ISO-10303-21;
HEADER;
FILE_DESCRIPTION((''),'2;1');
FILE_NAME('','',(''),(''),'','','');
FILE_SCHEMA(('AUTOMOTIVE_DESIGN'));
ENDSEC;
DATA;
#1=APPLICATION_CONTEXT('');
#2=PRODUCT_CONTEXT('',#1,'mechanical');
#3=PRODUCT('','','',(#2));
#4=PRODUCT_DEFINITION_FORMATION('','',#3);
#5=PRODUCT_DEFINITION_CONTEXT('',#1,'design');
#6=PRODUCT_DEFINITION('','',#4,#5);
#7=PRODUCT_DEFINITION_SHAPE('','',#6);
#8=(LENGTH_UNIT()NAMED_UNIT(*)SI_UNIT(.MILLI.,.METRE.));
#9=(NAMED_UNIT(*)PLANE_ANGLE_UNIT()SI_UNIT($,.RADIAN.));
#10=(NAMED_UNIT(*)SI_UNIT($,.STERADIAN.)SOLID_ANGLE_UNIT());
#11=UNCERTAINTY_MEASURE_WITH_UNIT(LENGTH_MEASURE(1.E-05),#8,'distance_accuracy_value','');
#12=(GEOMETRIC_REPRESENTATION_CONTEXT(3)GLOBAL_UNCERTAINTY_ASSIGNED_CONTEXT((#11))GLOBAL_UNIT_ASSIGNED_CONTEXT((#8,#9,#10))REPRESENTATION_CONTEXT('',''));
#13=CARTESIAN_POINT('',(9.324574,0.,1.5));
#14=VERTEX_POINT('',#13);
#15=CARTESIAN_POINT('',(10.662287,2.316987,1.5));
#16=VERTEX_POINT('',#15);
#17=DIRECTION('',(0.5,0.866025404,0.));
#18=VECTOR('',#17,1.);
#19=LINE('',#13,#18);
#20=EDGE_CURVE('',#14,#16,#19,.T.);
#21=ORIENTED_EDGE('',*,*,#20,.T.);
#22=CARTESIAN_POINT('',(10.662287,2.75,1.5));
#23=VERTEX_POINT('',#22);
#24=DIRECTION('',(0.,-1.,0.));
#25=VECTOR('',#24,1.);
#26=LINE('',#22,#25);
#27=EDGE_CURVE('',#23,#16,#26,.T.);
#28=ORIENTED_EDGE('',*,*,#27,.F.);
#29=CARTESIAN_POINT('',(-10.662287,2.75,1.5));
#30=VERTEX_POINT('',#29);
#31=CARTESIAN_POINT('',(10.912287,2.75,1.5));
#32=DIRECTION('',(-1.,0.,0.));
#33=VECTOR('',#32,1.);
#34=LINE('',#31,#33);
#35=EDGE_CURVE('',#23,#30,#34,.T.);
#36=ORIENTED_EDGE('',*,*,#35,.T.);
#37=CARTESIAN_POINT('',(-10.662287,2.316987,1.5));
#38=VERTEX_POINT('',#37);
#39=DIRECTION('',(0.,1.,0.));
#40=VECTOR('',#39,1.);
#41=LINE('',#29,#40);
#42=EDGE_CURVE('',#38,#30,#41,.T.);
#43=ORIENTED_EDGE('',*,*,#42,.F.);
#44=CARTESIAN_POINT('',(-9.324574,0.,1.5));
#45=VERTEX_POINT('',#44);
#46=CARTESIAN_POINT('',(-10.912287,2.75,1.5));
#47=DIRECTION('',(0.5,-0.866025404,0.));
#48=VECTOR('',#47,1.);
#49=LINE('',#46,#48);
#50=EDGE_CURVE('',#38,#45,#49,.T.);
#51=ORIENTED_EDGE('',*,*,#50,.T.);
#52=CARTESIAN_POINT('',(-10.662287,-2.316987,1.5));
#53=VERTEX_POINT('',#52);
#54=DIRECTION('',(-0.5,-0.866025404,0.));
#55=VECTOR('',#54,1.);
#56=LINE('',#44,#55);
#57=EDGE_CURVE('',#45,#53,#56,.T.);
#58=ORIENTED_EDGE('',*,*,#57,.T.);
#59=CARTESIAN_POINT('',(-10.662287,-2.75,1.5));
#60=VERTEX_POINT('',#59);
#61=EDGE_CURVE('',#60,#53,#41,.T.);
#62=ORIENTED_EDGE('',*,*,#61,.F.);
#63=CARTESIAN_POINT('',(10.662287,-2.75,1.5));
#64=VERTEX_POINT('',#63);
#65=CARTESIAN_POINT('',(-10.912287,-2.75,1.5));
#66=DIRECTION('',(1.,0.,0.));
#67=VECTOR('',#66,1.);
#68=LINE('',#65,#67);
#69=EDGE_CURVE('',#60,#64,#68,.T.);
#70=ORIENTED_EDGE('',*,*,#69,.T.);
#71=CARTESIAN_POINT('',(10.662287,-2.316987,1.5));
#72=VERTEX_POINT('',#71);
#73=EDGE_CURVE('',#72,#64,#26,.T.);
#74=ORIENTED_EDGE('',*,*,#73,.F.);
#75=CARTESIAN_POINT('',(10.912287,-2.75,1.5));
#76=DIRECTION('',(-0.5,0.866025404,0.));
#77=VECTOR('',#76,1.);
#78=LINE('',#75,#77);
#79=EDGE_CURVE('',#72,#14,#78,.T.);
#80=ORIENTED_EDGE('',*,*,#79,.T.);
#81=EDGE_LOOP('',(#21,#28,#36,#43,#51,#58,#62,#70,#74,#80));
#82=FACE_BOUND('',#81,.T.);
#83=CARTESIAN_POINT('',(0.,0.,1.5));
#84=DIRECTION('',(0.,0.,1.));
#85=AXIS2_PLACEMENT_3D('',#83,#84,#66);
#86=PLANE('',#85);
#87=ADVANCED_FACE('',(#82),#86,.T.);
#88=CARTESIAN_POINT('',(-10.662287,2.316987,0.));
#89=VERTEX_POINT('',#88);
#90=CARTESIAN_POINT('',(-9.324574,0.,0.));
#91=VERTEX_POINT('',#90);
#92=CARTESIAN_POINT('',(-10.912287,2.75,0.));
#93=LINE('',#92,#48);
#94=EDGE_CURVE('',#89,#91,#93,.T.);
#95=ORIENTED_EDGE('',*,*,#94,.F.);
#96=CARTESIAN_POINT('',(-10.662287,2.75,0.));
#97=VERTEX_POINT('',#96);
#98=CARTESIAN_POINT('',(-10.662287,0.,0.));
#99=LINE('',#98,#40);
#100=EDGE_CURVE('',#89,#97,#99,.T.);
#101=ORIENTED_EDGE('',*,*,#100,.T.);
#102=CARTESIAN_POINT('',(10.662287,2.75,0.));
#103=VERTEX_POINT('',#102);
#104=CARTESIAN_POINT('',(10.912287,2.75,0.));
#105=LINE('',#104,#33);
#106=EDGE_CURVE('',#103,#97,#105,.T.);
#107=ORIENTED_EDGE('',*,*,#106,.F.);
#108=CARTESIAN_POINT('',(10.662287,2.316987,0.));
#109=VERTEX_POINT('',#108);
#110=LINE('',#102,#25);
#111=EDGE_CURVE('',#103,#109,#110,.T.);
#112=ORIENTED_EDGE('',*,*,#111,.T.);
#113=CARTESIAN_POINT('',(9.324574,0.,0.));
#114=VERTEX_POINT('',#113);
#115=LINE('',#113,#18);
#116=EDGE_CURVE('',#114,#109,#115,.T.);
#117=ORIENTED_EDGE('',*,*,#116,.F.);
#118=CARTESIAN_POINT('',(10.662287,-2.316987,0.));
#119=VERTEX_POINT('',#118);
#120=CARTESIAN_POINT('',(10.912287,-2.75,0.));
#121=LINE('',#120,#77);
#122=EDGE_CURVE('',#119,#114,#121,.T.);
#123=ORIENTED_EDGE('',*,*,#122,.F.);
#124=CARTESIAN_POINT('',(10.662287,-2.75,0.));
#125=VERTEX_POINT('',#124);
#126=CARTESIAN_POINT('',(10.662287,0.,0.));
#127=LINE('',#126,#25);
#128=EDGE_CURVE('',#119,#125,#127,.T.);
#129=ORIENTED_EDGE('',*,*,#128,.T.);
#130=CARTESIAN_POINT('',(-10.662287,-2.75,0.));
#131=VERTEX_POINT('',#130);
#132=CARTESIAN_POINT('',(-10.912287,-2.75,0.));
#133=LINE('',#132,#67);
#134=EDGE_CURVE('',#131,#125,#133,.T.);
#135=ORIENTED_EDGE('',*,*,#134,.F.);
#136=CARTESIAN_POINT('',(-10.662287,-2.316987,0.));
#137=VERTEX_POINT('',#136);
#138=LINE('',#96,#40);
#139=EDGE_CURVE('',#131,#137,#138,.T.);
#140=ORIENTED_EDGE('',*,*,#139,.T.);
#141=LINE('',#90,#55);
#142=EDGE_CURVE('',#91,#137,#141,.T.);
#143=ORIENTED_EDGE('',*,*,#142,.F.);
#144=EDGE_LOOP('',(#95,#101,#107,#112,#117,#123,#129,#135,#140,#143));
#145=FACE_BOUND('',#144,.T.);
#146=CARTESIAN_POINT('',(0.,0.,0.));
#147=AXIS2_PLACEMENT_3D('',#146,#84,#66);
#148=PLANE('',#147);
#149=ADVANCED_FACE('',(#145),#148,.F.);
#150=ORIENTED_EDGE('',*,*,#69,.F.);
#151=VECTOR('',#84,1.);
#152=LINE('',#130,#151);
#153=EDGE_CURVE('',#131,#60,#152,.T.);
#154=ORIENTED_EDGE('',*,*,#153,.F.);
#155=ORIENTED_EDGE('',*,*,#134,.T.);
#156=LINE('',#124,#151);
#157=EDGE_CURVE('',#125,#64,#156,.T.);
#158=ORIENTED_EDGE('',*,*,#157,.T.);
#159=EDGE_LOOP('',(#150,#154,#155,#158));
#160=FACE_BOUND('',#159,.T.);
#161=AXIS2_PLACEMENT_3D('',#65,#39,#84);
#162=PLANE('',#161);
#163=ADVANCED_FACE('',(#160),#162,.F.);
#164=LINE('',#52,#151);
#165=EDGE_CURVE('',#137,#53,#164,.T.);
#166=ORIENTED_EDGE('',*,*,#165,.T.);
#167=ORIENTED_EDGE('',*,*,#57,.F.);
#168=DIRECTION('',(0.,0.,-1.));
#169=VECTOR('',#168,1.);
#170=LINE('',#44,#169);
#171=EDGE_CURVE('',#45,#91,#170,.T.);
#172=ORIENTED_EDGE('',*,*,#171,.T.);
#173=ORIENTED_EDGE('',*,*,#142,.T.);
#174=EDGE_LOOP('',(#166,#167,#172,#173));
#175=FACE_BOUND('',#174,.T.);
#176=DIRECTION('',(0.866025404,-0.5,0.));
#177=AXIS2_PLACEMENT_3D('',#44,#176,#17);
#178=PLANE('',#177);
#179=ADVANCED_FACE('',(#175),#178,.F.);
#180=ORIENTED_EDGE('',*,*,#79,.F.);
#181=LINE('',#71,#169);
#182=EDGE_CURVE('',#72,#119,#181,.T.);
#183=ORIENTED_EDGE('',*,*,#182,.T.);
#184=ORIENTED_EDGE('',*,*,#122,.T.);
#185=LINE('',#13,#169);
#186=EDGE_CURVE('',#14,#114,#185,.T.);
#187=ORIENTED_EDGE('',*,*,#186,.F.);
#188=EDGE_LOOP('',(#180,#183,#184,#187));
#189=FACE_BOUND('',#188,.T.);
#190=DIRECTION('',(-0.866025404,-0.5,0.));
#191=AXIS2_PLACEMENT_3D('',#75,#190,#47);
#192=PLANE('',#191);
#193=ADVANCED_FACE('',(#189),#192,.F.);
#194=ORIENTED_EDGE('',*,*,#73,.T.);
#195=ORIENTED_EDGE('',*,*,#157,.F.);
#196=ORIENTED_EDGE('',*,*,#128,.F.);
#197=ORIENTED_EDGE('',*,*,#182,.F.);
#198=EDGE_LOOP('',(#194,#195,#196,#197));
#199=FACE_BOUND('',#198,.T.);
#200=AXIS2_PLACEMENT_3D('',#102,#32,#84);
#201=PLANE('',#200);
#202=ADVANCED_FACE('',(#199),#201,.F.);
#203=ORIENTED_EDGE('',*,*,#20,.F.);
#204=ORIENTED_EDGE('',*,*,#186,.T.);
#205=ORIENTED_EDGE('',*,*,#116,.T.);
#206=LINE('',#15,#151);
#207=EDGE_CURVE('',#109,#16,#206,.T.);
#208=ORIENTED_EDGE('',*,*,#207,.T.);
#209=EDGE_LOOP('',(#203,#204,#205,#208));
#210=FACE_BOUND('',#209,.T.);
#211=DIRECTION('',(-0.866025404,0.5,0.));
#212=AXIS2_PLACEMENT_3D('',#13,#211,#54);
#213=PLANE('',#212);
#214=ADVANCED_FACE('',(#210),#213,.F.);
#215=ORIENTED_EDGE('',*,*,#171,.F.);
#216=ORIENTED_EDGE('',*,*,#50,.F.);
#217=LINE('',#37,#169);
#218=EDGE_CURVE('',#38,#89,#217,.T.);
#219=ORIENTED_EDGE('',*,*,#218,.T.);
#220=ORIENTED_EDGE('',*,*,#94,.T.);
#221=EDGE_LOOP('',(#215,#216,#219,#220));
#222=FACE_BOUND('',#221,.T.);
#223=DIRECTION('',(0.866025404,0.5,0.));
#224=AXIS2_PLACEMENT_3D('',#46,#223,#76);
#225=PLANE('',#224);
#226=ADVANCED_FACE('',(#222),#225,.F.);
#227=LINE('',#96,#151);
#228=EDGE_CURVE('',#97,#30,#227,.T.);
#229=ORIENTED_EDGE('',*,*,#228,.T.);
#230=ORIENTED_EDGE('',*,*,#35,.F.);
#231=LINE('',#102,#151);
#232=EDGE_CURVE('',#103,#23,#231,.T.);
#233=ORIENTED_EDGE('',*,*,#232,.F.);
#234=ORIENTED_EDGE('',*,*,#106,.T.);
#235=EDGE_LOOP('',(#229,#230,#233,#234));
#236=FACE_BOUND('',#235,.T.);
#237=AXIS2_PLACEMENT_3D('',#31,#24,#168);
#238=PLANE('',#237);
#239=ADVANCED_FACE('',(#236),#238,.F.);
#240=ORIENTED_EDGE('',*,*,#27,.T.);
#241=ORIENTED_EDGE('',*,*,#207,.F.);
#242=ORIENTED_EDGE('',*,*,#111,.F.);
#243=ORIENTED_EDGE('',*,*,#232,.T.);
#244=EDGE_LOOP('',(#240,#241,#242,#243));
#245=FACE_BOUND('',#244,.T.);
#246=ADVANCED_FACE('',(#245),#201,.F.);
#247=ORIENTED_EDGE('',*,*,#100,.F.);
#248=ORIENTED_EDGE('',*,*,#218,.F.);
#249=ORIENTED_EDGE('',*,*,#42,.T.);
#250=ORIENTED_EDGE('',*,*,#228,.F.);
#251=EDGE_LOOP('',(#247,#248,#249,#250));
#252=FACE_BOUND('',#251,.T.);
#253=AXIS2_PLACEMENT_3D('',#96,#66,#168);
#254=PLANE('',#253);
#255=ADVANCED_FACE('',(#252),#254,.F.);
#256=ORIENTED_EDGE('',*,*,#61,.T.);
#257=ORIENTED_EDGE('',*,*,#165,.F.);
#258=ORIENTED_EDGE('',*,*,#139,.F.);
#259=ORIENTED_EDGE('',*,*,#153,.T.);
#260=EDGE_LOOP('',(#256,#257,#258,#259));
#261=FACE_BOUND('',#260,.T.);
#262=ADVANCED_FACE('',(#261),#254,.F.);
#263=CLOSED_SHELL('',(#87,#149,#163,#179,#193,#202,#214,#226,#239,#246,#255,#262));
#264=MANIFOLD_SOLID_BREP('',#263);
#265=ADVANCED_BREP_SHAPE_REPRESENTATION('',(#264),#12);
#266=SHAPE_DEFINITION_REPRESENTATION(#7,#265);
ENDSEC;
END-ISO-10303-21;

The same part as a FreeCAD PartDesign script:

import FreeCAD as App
import Part
import Sketcher
Q = App.Units.Quantity


def add_polygon(sketch, points):
    """Adds a closed chain of lines whose ends are joined by coincident constraints."""
    first, n = sketch.GeometryCount, len(points)
    for a, b in zip(points, points[1:] + points[:1]):
        sketch.addGeometry(Part.LineSegment(App.Vector(*a, 0), App.Vector(*b, 0)), False)
    for i in range(n):
        sketch.addConstraint(Sketcher.Constraint("Coincident", first + i, 2, first + (i + 1) % n, 1))

doc = App.newDocument("Part")
params = doc.addObject("Spreadsheet::Sheet", "Params")
for row, (alias, value) in enumerate([
    ("pad1_length", "1.5 mm"),
    ("sketch2_height", "5.5 mm"),
    ("sketch2_width", "0.25 mm"),
], start=1):
    params.set(f"A{row}", alias)
    params.set(f"B{row}", "=" + value)
    params.setAlias(f"B{row}", alias)

body = doc.addObject("PartDesign::Body", "Body")

# Sketch on XY plane
sketch1 = body.newObject("Sketcher::SketchObject", "Sketch")
sketch1.AttachmentSupport = (doc.getObject("XY_Plane"), [""])
sketch1.MapMode = "FlatFace"
add_polygon(sketch1, [(-10.9, 2.8), (-9.3, 0), (-10.9, -2.8), (10.9, -2.8), (9.3, 0), (10.9, 2.8)])  # lines 0-5
sketch1.addConstraint(Sketcher.Constraint("Horizontal", 2))
sketch1.addConstraint(Sketcher.Constraint("Horizontal", 5))
sketch1.addConstraint(Sketcher.Constraint("Symmetric", 0, 2, 3, 2, -1, 1))
sketch1.addConstraint(Sketcher.Constraint("Symmetric", 1, 2, 4, 2, -1, 1))
sketch1.addConstraint(Sketcher.Constraint("PointOnObject", 0, 2, -1))
sketch1.addConstraint(Sketcher.Constraint("Parallel", 0, 3))
sketch1.addConstraint(Sketcher.Constraint("Vertical", 2, 2, 4, 2))
sketch1.addConstraint(Sketcher.Constraint("Angle", 0, Q("-60 deg")))
sketch1.addConstraint(Sketcher.Constraint("DistanceY", 2, 2, 4, 2, Q("5.5 mm")))
sketch1.addConstraint(Sketcher.Constraint("DistanceX", 2, 1, 2, 2, Q("21.824574 mm")))
pad1 = body.newObject("PartDesign::Pad", "Pad")
pad1.Profile = sketch1
pad1.setExpression("Length", "Params.pad1_length")

# Sketch on XY plane
sketch2 = body.newObject("Sketcher::SketchObject", "Sketch001")
sketch2.AttachmentSupport = (doc.getObject("XY_Plane"), [""])
sketch2.MapMode = "FlatFace"
sketch2.AttachmentOffset = App.Placement(App.Vector(0, 0, 1.5), App.Rotation())
add_polygon(sketch2, [(10.66, 2.75), (10.66, -2.75), (10.91, -2.75), (10.91, 2.75)])  # lines 0-3
add_polygon(sketch2, [(-10.91, 2.75), (-10.91, -2.75), (-10.66, -2.75), (-10.66, 2.75)])  # lines 4-7
sketch2.addConstraint(Sketcher.Constraint("Vertical", 0))
sketch2.addConstraint(Sketcher.Constraint("Horizontal", 1))
sketch2.addConstraint(Sketcher.Constraint("Vertical", 2))
sketch2.addConstraint(Sketcher.Constraint("Horizontal", 3))
sketch2.addConstraint(Sketcher.Constraint("Vertical", 4))
sketch2.addConstraint(Sketcher.Constraint("Horizontal", 5))
sketch2.addConstraint(Sketcher.Constraint("Vertical", 6))
sketch2.addConstraint(Sketcher.Constraint("Horizontal", 7))
sketch2.addConstraint(Sketcher.Constraint("Symmetric", 2, 2, 4, 2, -1, 1))
sketch2.addConstraint(Sketcher.Constraint("Symmetric", 0, 2, 6, 2, -1, 1))
sketch2.addConstraint(Sketcher.Constraint("Horizontal", 1, 2, 4, 2))
sketch2.addConstraint(Sketcher.Constraint("DistanceY", 0, 2, 0, 1, Q("5.5 mm")))
sketch2.addConstraint(Sketcher.Constraint("DistanceX", 1, 1, 1, 2, Q("0.25 mm")))
sketch2.addConstraint(Sketcher.Constraint("DistanceX", -1, 1, 0, 2, Q("10.662287 mm")))
sketch2.setExpression("Constraints[19]", "Params.sketch2_height")
sketch2.setExpression("Constraints[20]", "Params.sketch2_width")
pocket1 = body.newObject("PartDesign::Pocket", "Pocket")
pocket1.Profile = sketch2
pocket1.Type = "ThroughAll"

doc.recompute()
